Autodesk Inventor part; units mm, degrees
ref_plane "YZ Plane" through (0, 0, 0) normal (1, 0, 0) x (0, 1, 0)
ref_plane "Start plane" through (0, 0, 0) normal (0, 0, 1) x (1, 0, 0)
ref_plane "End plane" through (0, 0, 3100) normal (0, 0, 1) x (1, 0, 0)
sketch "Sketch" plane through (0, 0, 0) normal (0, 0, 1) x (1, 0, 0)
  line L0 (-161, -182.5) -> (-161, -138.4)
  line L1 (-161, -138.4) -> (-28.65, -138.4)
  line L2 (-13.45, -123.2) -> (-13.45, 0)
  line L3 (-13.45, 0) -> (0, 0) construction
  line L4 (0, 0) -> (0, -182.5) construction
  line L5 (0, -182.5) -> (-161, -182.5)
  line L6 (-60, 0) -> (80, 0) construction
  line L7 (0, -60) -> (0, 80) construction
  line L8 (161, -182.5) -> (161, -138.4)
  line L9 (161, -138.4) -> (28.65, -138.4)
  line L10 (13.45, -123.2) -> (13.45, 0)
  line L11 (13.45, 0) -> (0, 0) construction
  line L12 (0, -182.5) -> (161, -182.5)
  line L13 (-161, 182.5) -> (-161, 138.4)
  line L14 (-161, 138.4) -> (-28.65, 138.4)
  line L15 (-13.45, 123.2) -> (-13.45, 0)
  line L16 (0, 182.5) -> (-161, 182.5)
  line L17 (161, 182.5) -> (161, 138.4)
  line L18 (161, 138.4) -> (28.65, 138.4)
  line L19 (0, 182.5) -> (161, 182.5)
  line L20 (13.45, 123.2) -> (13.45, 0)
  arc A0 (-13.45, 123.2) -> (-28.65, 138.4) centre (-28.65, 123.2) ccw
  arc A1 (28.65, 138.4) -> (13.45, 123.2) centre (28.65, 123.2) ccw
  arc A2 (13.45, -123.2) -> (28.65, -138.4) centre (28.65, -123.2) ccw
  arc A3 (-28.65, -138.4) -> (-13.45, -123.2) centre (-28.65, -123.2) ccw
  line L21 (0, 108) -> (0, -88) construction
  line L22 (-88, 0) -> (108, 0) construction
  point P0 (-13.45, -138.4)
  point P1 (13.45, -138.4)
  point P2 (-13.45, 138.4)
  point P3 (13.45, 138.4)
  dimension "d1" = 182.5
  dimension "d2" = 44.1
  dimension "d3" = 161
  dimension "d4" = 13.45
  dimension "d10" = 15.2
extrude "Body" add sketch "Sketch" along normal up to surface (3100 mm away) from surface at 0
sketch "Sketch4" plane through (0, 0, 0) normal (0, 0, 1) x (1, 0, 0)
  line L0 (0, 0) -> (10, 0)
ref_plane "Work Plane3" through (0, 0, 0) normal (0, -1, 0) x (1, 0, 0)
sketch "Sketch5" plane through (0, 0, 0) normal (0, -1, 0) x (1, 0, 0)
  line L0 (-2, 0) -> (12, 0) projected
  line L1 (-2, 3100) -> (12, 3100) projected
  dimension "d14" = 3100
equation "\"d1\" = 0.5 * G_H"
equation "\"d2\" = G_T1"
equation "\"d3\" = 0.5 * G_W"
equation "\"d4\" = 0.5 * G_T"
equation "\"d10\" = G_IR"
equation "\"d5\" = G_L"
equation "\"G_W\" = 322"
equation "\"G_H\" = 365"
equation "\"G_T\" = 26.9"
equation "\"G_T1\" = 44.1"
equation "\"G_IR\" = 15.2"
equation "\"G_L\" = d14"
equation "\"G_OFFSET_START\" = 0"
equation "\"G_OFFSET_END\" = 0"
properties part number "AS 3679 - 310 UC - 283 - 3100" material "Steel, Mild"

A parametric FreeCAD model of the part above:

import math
import FreeCAD as App
import Part
import Sketcher

V = App.Vector
Q = App.Units.Quantity

doc = App.newDocument("Part")
body = doc.addObject("PartDesign::Body", "Body")

# Sketch on XY plane
sketch1 = doc.addObject("Sketcher::SketchObject", "Sketch")
body.addObject(sketch1)
sketch1.AttachmentSupport = (doc.XY_Plane, [""])
sketch1.MapMode = "FlatFace"
sketch1.addGeometry([
    Part.LineSegment(V(-161, -138.4, 0), V(-161, -182.5, 0)),  # 0
    Part.LineSegment(V(-161, -182.5, 0), V(161, -182.5, 0)),  # 1
    Part.LineSegment(V(161, -182.5, 0), V(161, -138.4, 0)),  # 2
    Part.LineSegment(V(161, -138.4, 0), V(28.65, -138.4, 0)),  # 3
    Part.ArcOfCircle(Part.Circle(V(28.65, -123.2, 0), V(0, 0, 1), 15.2), math.radians(180), math.radians(270)),  # 4
    Part.LineSegment(V(13.45, -123.2, 0), V(13.45, 123.2, 0)),  # 5
    Part.ArcOfCircle(Part.Circle(V(28.65, 123.2, 0), V(0, 0, 1), 15.2), math.radians(90), math.radians(180)),  # 6
    Part.LineSegment(V(28.65, 138.4, 0), V(161, 138.4, 0)),  # 7
    Part.LineSegment(V(161, 138.4, 0), V(161, 182.5, 0)),  # 8
    Part.LineSegment(V(161, 182.5, 0), V(-161, 182.5, 0)),  # 9
    Part.LineSegment(V(-161, 182.5, 0), V(-161, 138.4, 0)),  # 10
    Part.LineSegment(V(-161, 138.4, 0), V(-28.65, 138.4, 0)),  # 11
    Part.ArcOfCircle(Part.Circle(V(-28.65, 123.2, 0), V(0, 0, 1), 15.2), math.radians(0), math.radians(90)),  # 12
    Part.LineSegment(V(-13.45, 123.2, 0), V(-13.45, -123.2, 0)),  # 13
    Part.ArcOfCircle(Part.Circle(V(-28.65, -123.2, 0), V(0, 0, 1), 15.2), math.radians(-90), math.radians(0)),  # 14
    Part.LineSegment(V(-28.65, -138.4, 0), V(-161, -138.4, 0)),  # 15
], False)
sketch1.addConstraint([
    Sketcher.Constraint("Coincident", 0, 2, 1, 1),
    Sketcher.Constraint("Coincident", 1, 2, 2, 1),
    Sketcher.Constraint("Coincident", 2, 2, 3, 1),
    Sketcher.Constraint("Tangent", 3, 2, 4, 2),
    Sketcher.Constraint("Tangent", 4, 1, 5, 1),
    Sketcher.Constraint("Tangent", 5, 2, 6, 2),
    Sketcher.Constraint("Tangent", 6, 1, 7, 1),
    Sketcher.Constraint("Coincident", 7, 2, 8, 1),
    Sketcher.Constraint("Coincident", 8, 2, 9, 1),
    Sketcher.Constraint("Coincident", 9, 2, 10, 1),
    Sketcher.Constraint("Coincident", 10, 2, 11, 1),
    Sketcher.Constraint("Tangent", 11, 2, 12, 2),
    Sketcher.Constraint("Tangent", 12, 1, 13, 1),
    Sketcher.Constraint("Tangent", 13, 2, 14, 2),
    Sketcher.Constraint("Tangent", 14, 1, 15, 1),
    Sketcher.Constraint("Coincident", 15, 2, 0, 1),
    Sketcher.Constraint("Vertical", 0),
    Sketcher.Constraint("Horizontal", 1),
    Sketcher.Constraint("Vertical", 2),
    Sketcher.Constraint("Horizontal", 3),
    Sketcher.Constraint("Vertical", 5),
    Sketcher.Constraint("Horizontal", 7),
    Sketcher.Constraint("Vertical", 8),
    Sketcher.Constraint("Horizontal", 9),
    Sketcher.Constraint("Vertical", 10),
    Sketcher.Constraint("Horizontal", 11),
    Sketcher.Constraint("Vertical", 13),
    Sketcher.Constraint("Horizontal", 15),
    Sketcher.Constraint("Equal", 4, 6),
    Sketcher.Constraint("Equal", 6, 12),
    Sketcher.Constraint("Equal", 12, 14),
    Sketcher.Constraint("Symmetric", 4, 3, 12, 3, -1, 1),
    Sketcher.Constraint("Symmetric", 0, 2, 8, 2, -1, 1),
    Sketcher.Constraint("Symmetric", 7, 2, 10, 2, -2),
    Sketcher.Constraint("Symmetric", 2, 2, 15, 2, -2),
    Sketcher.Constraint("Radius", 4, Q("15.2 mm")),
    Sketcher.Constraint("DistanceY", 0, 2, 0, 1, Q("44.1 mm")),
    Sketcher.Constraint("DistanceX", 0, 2, -1, 1, Q("161 mm")),
    Sketcher.Constraint("DistanceY", 0, 2, -1, 1, Q("182.5 mm")),
    Sketcher.Constraint("DistanceX", -1, 1, 4, 1, Q("13.45 mm")),
])
pad1 = doc.addObject("PartDesign::Pad", "Pad")
body.addObject(pad1)
pad1.Profile = sketch1
pad1.Length = 3100

doc.recompute()
